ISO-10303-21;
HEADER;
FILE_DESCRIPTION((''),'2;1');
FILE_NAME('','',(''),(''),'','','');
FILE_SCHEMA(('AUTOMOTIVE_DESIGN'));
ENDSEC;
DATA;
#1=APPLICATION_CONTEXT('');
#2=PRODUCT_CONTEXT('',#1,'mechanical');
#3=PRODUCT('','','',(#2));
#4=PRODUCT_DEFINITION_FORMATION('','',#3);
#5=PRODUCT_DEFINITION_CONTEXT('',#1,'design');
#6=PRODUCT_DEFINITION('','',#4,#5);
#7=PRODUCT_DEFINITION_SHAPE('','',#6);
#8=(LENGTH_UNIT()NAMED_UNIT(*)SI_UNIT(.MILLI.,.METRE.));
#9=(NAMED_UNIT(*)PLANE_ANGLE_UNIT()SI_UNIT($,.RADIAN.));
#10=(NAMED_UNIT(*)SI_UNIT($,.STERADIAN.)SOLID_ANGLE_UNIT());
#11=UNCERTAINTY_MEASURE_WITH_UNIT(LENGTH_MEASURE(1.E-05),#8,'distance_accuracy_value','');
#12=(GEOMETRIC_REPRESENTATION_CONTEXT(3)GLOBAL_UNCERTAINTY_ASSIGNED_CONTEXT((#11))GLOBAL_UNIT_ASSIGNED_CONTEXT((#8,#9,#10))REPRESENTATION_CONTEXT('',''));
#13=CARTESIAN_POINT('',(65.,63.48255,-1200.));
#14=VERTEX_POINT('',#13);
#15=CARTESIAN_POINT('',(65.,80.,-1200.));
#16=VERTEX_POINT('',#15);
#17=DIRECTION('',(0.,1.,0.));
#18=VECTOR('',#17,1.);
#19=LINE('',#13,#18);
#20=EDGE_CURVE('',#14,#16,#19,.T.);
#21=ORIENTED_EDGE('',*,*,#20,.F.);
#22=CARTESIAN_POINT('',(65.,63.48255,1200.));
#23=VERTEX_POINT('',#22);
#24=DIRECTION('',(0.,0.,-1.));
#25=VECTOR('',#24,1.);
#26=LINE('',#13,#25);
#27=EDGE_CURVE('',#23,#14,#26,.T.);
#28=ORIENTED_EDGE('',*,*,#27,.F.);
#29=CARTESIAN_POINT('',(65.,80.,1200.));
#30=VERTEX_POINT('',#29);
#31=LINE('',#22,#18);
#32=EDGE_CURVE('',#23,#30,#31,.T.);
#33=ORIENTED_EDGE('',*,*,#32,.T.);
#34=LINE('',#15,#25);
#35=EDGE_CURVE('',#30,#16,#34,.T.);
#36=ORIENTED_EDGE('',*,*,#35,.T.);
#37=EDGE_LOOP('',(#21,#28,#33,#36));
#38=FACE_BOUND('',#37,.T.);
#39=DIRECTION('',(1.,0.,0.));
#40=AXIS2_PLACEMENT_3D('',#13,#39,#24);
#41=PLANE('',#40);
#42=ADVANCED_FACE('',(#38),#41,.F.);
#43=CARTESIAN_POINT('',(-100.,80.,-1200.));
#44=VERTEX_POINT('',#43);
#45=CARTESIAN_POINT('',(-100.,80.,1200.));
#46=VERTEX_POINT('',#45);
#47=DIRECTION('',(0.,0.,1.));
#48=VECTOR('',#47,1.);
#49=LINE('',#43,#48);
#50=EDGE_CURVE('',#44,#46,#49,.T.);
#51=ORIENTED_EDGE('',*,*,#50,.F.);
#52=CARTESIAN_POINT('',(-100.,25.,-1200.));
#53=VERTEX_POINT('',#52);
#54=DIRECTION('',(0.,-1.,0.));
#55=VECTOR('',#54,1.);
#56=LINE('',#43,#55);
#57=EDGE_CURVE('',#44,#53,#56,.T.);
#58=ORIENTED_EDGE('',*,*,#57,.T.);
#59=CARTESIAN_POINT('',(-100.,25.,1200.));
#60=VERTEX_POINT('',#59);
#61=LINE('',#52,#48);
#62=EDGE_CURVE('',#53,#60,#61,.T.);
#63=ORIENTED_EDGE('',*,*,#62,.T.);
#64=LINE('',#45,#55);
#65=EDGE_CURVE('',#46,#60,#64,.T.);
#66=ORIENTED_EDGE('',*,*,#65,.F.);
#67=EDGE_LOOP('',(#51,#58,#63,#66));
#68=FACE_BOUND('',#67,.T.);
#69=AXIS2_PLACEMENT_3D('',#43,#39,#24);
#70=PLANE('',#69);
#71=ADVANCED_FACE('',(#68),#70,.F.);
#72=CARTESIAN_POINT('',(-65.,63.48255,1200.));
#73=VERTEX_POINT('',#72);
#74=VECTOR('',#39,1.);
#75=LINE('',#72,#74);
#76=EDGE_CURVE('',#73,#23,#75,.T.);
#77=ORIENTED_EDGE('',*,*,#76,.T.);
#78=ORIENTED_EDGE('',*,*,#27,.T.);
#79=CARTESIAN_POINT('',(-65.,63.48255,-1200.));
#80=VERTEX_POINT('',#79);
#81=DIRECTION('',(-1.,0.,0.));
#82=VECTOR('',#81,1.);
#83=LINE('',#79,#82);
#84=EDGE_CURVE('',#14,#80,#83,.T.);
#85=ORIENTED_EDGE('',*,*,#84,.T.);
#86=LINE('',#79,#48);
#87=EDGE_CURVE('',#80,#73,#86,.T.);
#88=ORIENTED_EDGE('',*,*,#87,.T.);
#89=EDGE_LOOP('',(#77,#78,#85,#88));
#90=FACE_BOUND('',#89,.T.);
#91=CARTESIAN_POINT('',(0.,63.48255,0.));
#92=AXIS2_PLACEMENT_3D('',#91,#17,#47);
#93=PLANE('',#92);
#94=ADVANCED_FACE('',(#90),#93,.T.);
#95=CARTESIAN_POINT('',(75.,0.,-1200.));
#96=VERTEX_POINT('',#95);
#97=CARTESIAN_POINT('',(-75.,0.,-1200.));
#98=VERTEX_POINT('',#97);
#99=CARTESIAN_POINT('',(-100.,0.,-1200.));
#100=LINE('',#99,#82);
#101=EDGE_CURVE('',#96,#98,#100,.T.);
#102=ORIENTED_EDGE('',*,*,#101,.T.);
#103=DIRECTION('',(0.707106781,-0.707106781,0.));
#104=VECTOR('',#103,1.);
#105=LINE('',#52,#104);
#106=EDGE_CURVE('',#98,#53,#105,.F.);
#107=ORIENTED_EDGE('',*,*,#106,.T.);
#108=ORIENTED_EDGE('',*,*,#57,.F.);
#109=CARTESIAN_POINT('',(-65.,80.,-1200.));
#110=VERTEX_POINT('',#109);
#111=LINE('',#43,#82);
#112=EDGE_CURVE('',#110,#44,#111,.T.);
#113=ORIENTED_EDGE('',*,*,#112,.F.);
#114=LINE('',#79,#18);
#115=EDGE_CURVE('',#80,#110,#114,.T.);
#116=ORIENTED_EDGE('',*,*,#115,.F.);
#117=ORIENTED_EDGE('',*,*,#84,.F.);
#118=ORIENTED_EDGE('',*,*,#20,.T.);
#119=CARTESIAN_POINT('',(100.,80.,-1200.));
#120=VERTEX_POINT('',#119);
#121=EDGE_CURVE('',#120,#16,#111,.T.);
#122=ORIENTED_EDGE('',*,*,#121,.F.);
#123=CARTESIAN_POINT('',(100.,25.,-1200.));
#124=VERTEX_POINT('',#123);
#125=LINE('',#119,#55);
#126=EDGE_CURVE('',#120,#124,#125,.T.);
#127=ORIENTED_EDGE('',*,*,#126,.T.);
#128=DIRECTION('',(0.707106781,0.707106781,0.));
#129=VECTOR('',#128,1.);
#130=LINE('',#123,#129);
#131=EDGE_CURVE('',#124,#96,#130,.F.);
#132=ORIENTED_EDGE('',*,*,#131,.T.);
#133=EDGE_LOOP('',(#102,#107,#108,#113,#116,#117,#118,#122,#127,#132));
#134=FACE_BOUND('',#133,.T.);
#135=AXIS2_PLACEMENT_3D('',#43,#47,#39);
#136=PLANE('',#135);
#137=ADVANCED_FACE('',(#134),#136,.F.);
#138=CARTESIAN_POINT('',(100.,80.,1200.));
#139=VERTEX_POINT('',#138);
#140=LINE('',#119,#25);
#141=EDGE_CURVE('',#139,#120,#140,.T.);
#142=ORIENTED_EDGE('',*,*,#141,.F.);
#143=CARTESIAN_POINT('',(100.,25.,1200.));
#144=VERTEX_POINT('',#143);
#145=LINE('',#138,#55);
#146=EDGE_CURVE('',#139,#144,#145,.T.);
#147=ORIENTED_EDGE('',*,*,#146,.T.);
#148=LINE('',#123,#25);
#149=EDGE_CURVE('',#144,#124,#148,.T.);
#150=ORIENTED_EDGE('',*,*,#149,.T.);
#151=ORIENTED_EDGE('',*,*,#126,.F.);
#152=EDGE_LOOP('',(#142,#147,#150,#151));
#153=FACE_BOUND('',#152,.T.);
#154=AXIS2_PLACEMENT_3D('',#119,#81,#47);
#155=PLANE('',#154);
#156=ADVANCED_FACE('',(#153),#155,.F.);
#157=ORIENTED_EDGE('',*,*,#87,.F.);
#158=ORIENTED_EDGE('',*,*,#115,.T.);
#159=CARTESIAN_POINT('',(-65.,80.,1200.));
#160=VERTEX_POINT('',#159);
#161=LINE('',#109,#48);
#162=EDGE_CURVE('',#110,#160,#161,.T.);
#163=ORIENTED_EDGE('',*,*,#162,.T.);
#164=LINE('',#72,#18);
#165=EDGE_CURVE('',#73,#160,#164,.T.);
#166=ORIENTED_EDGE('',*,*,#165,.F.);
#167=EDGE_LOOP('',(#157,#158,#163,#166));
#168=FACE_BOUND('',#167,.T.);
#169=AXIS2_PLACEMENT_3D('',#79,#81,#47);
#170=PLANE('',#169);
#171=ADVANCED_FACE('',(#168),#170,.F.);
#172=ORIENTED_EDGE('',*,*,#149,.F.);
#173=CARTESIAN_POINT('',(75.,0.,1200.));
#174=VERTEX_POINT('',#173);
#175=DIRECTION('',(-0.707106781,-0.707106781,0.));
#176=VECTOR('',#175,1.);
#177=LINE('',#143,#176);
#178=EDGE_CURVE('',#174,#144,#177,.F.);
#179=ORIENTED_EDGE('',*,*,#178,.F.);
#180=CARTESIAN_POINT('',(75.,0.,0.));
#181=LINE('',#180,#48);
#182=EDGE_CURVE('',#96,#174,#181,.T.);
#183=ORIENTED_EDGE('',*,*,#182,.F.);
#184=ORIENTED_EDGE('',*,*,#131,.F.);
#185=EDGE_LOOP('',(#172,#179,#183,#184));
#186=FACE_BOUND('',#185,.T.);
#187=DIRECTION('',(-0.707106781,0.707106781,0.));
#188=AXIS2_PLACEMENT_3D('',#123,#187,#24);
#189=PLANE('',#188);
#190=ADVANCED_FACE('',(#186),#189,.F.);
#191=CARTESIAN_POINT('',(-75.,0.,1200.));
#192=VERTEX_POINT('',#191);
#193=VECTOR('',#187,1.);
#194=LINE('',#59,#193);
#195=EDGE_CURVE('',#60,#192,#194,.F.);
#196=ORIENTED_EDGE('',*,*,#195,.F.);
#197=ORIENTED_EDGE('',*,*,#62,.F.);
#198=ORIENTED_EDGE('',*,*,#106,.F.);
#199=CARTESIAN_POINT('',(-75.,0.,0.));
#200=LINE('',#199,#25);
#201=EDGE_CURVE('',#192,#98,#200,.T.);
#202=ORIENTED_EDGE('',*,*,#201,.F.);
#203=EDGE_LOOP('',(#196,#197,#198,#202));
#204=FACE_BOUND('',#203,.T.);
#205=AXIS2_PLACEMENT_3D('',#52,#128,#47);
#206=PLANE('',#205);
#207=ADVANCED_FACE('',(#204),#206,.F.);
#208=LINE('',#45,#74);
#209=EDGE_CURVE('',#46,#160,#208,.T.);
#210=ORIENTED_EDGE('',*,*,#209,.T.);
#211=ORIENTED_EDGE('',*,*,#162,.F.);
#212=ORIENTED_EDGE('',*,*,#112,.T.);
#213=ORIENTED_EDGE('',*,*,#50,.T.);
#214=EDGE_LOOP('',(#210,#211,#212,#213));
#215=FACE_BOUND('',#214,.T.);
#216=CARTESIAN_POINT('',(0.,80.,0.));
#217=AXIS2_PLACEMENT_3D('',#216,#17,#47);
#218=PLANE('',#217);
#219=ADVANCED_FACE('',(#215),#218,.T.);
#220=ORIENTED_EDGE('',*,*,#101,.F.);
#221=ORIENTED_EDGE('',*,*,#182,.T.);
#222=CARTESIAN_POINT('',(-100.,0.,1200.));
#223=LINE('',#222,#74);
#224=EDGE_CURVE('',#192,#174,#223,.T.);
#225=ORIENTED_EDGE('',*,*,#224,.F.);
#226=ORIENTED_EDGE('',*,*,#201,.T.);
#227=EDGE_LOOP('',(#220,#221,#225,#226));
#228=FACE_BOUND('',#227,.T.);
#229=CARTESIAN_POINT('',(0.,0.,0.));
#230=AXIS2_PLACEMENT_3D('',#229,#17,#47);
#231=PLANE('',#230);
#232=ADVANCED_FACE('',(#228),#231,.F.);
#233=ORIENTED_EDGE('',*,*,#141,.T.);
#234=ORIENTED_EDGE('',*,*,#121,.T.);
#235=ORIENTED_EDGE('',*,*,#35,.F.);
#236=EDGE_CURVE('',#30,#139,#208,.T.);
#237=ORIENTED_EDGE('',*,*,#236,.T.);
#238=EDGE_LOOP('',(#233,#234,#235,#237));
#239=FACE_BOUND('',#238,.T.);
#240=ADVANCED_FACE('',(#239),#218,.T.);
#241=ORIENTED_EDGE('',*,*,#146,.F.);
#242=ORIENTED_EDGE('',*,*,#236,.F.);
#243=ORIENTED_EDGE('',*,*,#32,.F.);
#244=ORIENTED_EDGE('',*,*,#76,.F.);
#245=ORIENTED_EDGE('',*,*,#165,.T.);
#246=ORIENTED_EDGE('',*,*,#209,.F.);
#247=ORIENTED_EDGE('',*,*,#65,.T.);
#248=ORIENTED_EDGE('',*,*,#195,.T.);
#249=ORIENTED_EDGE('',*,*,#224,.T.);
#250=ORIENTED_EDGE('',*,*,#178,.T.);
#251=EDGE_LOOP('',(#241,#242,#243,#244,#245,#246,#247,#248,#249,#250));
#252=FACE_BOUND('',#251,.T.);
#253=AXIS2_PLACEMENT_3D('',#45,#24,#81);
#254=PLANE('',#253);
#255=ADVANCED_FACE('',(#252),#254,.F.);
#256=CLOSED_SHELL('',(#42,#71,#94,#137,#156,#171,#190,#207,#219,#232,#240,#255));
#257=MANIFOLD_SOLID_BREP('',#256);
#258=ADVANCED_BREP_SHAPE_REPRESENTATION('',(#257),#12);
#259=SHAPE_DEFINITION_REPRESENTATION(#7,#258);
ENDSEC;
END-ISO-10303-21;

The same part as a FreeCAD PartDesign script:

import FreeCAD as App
import Part
import Sketcher


def edges_at(feature, points):
    """Names of the edges that pass closest to the given points."""
    edges = feature.Shape.Edges
    near = lambda p: min(range(len(edges)), key=lambda i: edges[i].distToShape(Part.Vertex(*p))[0])
    return sorted({f"Edge{near(p) + 1}" for p in points})


def add_polygon(sketch, points):
    """Adds a closed chain of lines whose ends are joined by coincident constraints."""
    first, n = sketch.GeometryCount, len(points)
    for a, b in zip(points, points[1:] + points[:1]):
        sketch.addGeometry(Part.LineSegment(App.Vector(*a, 0), App.Vector(*b, 0)), False)
    for i in range(n):
        sketch.addConstraint(Sketcher.Constraint("Coincident", first + i, 2, first + (i + 1) % n, 1))

doc = App.newDocument("Part")
body = doc.addObject("PartDesign::Body", "Body")

# Sketch on XZ plane
sketch1 = body.newObject("Sketcher::SketchObject", "Sketch")
sketch1.AttachmentSupport = (doc.getObject("XZ_Plane"), [""])
sketch1.MapMode = "FlatFace"
add_polygon(sketch1, [(-100, -1200), (-100, 1200), (100, 1200), (100, -1200)])  # lines 0-3
sketch1.addConstraint(Sketcher.Constraint("Vertical", 0))
sketch1.addConstraint(Sketcher.Constraint("Horizontal", 1))
sketch1.addConstraint(Sketcher.Constraint("Vertical", 2))
sketch1.addConstraint(Sketcher.Constraint("Horizontal", 3))
sketch1.addConstraint(Sketcher.Constraint("Symmetric", 0, 2, 2, 2, -1, 1))
sketch1.addConstraint(Sketcher.Constraint("DistanceX", 1, 1, 1, 2, 200.0))
sketch1.addConstraint(Sketcher.Constraint("DistanceY", 0, 1, 0, 2, 2400.0))
pad1 = body.newObject("PartDesign::Pad", "Pad")
pad1.Profile = sketch1
pad1.Length = 80
pad1.Reversed = True
doc.recompute()

chamfer = body.newObject("PartDesign::Chamfer", "Chamfer")
chamfer.Base = (pad1, edges_at(pad1, [(-100, 0, 0), (100, 0, 0)]))
chamfer.Size = 25

# Sketch on XZ plane
sketch2 = body.newObject("Sketcher::SketchObject", "Sketch001")
sketch2.AttachmentSupport = (doc.getObject("XZ_Plane"), [""])
sketch2.MapMode = "FlatFace"
sketch2.AttachmentOffset = App.Placement(App.Vector(0, 0, -80), App.Rotation())
add_polygon(sketch2, [(-65, -1200), (-65, 1200), (65, 1200), (65, -1200)])  # lines 0-3
sketch2.addConstraint(Sketcher.Constraint("Vertical", 0))
sketch2.addConstraint(Sketcher.Constraint("Horizontal", 1))
sketch2.addConstraint(Sketcher.Constraint("Vertical", 2))
sketch2.addConstraint(Sketcher.Constraint("Horizontal", 3))
sketch2.addConstraint(Sketcher.Constraint("Symmetric", 0, 2, 2, 2, -1, 1))
sketch2.addConstraint(Sketcher.Constraint("DistanceX", 1, 1, 1, 2, 130.0))
sketch2.addConstraint(Sketcher.Constraint("DistanceY", 0, 1, 0, 2, 2400.0))
pocket1 = body.newObject("PartDesign::Pocket", "Pocket")
pocket1.Profile = sketch2
pocket1.Length = 16.51745
pocket1.Reversed = True

doc.recompute()
